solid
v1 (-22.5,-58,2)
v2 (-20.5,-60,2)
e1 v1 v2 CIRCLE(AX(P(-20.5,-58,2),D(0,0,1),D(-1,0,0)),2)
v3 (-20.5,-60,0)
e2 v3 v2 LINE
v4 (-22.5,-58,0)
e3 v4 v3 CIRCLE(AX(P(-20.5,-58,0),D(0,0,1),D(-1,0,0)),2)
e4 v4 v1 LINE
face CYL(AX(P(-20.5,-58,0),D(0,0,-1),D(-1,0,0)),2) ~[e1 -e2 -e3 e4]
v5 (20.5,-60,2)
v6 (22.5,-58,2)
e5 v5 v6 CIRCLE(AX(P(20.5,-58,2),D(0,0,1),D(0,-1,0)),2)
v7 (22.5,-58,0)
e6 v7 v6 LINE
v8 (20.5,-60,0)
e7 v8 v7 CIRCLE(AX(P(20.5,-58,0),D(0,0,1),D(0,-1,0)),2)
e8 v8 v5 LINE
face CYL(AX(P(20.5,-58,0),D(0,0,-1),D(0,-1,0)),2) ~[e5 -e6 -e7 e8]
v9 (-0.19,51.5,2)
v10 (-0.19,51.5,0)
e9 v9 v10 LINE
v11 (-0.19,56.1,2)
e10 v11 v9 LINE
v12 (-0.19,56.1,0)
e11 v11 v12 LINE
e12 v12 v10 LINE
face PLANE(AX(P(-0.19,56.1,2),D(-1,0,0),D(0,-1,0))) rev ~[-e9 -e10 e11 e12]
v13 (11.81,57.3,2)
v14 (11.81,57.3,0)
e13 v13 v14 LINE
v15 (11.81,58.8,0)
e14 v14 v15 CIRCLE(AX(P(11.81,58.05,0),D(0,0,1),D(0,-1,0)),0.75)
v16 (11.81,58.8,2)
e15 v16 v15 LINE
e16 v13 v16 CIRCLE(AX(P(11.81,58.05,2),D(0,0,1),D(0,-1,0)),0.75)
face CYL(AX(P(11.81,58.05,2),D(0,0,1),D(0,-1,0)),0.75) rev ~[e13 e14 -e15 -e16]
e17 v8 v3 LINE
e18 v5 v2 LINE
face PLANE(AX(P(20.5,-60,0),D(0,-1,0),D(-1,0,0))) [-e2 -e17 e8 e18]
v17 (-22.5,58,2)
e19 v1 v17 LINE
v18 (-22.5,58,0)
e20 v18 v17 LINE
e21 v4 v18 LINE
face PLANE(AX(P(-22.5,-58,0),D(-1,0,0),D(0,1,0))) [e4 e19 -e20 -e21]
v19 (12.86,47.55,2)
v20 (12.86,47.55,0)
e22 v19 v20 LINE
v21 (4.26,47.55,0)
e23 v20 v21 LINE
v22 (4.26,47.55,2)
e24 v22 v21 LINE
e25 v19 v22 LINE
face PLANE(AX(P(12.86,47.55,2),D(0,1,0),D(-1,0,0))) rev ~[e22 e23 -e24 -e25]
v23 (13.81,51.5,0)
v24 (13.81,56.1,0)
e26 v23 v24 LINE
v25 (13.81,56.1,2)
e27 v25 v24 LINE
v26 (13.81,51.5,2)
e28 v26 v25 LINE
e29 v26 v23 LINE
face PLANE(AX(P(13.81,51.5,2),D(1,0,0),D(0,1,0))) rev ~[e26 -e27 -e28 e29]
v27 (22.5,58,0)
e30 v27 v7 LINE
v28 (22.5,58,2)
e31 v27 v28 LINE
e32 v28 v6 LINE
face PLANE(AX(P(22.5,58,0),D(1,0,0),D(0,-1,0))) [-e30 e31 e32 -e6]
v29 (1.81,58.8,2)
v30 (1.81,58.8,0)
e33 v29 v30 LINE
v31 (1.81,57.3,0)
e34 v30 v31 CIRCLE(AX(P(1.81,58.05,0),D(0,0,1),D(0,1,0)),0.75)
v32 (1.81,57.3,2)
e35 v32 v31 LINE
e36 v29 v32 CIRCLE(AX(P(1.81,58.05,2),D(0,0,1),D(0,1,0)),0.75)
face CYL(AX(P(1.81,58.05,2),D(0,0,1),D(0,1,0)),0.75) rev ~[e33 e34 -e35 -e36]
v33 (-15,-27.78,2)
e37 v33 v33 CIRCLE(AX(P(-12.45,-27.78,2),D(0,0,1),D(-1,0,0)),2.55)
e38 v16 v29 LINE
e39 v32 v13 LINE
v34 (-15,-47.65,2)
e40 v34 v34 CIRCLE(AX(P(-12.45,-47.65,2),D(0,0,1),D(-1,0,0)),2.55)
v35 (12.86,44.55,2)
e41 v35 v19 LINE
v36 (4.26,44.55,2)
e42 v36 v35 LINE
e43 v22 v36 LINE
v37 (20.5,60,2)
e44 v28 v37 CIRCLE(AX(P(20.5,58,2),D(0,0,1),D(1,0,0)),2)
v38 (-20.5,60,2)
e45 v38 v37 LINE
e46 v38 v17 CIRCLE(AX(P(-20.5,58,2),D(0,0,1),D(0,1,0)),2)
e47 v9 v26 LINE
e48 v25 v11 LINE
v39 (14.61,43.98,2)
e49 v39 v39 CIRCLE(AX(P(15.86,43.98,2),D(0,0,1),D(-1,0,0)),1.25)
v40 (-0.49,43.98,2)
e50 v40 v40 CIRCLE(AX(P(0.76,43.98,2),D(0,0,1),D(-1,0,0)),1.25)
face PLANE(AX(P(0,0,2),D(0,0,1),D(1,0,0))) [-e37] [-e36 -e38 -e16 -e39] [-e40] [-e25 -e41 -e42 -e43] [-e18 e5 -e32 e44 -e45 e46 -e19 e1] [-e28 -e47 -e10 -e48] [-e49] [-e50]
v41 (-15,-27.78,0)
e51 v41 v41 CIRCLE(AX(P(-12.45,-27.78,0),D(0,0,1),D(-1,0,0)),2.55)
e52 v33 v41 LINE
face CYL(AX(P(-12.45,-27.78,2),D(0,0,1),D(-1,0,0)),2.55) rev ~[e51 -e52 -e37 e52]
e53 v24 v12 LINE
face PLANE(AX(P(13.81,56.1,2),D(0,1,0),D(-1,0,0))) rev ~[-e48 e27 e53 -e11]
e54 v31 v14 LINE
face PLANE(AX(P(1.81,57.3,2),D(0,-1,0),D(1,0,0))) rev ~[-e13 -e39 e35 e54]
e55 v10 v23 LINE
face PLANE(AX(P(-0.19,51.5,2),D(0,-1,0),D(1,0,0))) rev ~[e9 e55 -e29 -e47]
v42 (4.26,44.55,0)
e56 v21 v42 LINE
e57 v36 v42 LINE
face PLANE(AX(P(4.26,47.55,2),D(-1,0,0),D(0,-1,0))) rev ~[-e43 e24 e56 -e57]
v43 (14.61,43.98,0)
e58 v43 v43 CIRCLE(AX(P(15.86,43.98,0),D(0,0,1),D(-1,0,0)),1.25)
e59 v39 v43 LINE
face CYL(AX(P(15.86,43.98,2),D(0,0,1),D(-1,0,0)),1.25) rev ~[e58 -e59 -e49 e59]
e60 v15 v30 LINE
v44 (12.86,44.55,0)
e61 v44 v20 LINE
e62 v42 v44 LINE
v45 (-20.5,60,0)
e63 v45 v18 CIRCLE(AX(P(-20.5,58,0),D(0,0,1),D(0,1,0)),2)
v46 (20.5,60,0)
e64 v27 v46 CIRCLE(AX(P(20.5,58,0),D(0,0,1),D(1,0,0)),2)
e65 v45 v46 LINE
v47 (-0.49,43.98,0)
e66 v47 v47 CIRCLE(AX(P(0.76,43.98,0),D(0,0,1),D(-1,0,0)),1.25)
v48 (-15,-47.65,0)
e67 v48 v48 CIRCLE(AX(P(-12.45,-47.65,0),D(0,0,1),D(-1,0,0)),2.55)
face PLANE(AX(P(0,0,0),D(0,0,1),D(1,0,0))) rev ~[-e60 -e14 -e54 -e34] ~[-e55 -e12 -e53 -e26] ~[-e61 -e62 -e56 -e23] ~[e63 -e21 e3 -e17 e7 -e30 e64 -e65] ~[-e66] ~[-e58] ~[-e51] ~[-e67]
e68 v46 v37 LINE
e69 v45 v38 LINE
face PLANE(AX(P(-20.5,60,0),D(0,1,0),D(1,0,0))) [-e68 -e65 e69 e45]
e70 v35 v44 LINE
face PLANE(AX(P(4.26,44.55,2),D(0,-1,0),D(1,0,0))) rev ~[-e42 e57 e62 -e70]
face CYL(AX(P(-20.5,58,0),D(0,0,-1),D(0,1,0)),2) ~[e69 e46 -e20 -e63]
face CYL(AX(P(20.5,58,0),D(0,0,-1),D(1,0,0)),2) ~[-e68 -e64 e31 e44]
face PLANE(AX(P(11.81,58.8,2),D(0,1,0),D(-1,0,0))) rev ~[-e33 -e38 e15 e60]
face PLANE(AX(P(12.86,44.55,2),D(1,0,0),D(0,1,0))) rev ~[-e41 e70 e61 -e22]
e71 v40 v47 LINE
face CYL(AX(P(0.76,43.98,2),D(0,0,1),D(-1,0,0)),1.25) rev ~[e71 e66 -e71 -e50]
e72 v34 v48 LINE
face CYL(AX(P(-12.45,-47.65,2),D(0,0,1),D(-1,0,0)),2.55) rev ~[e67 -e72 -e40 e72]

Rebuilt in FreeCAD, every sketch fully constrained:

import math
import FreeCAD as App
import Part
import Sketcher
from FreeCAD import Vector
Q = App.Units.Quantity


def add_polygon(sketch, points):
    """Adds a closed chain of lines whose ends are joined by coincident constraints."""
    first, n = sketch.GeometryCount, len(points)
    for a, b in zip(points, points[1:] + points[:1]):
        sketch.addGeometry(Part.LineSegment(App.Vector(*a, 0), App.Vector(*b, 0)), False)
    for i in range(n):
        sketch.addConstraint(Sketcher.Constraint("Coincident", first + i, 2, first + (i + 1) % n, 1))

doc = App.newDocument("Part")
body = doc.addObject("PartDesign::Body", "Body")

sketch1 = body.newObject("Sketcher::SketchObject", "Sketch")
sketch1.AttachmentSupport = (doc.getObject("XY_Plane"), [""])
sketch1.MapMode = "FlatFace"
sketch1.addGeometry([
    Part.LineSegment(Vector(20.5, 60, 0), Vector(-20.5, 60, 0)),
    Part.ArcOfCircle(Part.Circle(Vector(-20.5, 58, 0), Vector(0, 0, 1), 2), math.radians(90), math.radians(180)),
    Part.LineSegment(Vector(-22.5, 58, 0), Vector(-22.5, -58, 0)),
    Part.ArcOfCircle(Part.Circle(Vector(-20.5, -58, 0), Vector(0, 0, 1), 2), math.radians(180), math.radians(270)),
    Part.LineSegment(Vector(-20.5, -60, 0), Vector(20.5, -60, 0)),
    Part.ArcOfCircle(Part.Circle(Vector(20.5, -58, 0), Vector(0, 0, 1), 2), math.radians(-90), math.radians(0)),
    Part.LineSegment(Vector(22.5, -58, 0), Vector(22.5, 58, 0)),
    Part.ArcOfCircle(Part.Circle(Vector(20.5, 58, 0), Vector(0, 0, 1), 2), math.radians(0), math.radians(90)),
], False)
sketch1.addConstraint([
    Sketcher.Constraint("Tangent", 0, 2, 1, 1),
    Sketcher.Constraint("Tangent", 1, 2, 2, 1),
    Sketcher.Constraint("Tangent", 2, 2, 3, 1),
    Sketcher.Constraint("Tangent", 3, 2, 4, 1),
    Sketcher.Constraint("Tangent", 4, 2, 5, 1),
    Sketcher.Constraint("Tangent", 5, 2, 6, 1),
    Sketcher.Constraint("Tangent", 6, 2, 7, 1),
    Sketcher.Constraint("Tangent", 7, 2, 0, 1),
    Sketcher.Constraint("Horizontal", 0),
    Sketcher.Constraint("Vertical", 2),
    Sketcher.Constraint("Horizontal", 4),
    Sketcher.Constraint("Vertical", 6),
    Sketcher.Constraint("Equal", 1, 3),
    Sketcher.Constraint("Equal", 3, 5),
    Sketcher.Constraint("Equal", 5, 7),
    Sketcher.Constraint("Symmetric", 1, 3, 5, 3, -1, 1),
    Sketcher.Constraint("Radius", 1, Q("2 mm")),
    Sketcher.Constraint("DistanceX", 2, 2, 5, 2, Q("45 mm")),
    Sketcher.Constraint("DistanceY", 2, 2, 2, 1, Q("116 mm")),
])
pad1 = body.newObject("PartDesign::Pad", "Pad")
pad1.Profile = sketch1
pad1.Length = 2

sketch2 = body.newObject("Sketcher::SketchObject", "Sketch001")
sketch2.AttachmentSupport = (doc.getObject("XY_Plane"), [""])
sketch2.MapMode = "FlatFace"
sketch2.AttachmentOffset = App.Placement(Vector(0, 0, 2), App.Rotation())
sketch2.addGeometry(Part.Circle(Vector(-12.4, -27.8, 0), Vector(0, 0, 1), 2.5), False)
sketch2.addGeometry(Part.Circle(Vector(-12.4, -47.6, 0), Vector(0, 0, 1), 2.5), False)
add_polygon(sketch2, [(-0.2, 56.1), (-0.2, 51.5), (13.8, 51.5), (13.8, 56.1)])
add_polygon(sketch2, [(4.3, 47.5), (4.3, 44.5), (12.9, 44.5), (12.9, 47.5)])
sketch2.addGeometry(Part.Circle(Vector(0.8, 44, 0), Vector(0, 0, 1), 1.2), False)
sketch2.addGeometry(Part.Circle(Vector(15.9, 44, 0), Vector(0, 0, 1), 1.2), False)
sketch2.addGeometry(Part.ArcOfCircle(Part.Circle(Vector(1.8, 58, 0), Vector(0, 0, 1), 0.8), math.radians(90), math.radians(270)), False)
sketch2.addGeometry(Part.LineSegment(Vector(1.8, 57.3, 0), Vector(11.8, 57.3, 0)), False)
sketch2.addGeometry(Part.ArcOfCircle(Part.Circle(Vector(11.8, 58, 0), Vector(0, 0, 1), 0.8), math.radians(-90), math.radians(90)), False)
sketch2.addGeometry(Part.LineSegment(Vector(11.8, 58.8, 0), Vector(1.8, 58.8, 0)), False)
sketch2.addConstraint([
    Sketcher.Constraint("Tangent", 12, 2, 13, 1),
    Sketcher.Constraint("Tangent", 13, 2, 14, 1),
    Sketcher.Constraint("Tangent", 14, 2, 15, 1),
    Sketcher.Constraint("Tangent", 15, 2, 12, 1),
    Sketcher.Constraint("Vertical", 2),
    Sketcher.Constraint("Horizontal", 3),
    Sketcher.Constraint("Vertical", 4),
    Sketcher.Constraint("Horizontal", 5),
    Sketcher.Constraint("Vertical", 6),
    Sketcher.Constraint("Horizontal", 7),
    Sketcher.Constraint("Vertical", 8),
    Sketcher.Constraint("Horizontal", 9),
    Sketcher.Constraint("Horizontal", 13),
    Sketcher.Constraint("Horizontal", 15),
    Sketcher.Constraint("Equal", 0, 1),
    Sketcher.Constraint("Equal", 10, 11),
    Sketcher.Constraint("Horizontal", 10, 3, 11, 3),
    Sketcher.Constraint("Vertical", 0, 3, 1, 3),
    Sketcher.Constraint("Diameter", 0, Q("5.1 mm")),
    Sketcher.Constraint("Diameter", 10, Q("2.5 mm")),
    Sketcher.Constraint("DistanceX", 3, 1, 3, 2, Q("14 mm")),
    Sketcher.Constraint("DistanceX", 13, 1, 13, 2, Q("10 mm")),
    Sketcher.Constraint("DistanceY", 6, 2, 6, 1, Q("3 mm")),
    Sketcher.Constraint("Radius", 12, Q("0.75 mm")),
    Sketcher.Constraint("DistanceX", 7, 1, 7, 2, Q("8.6 mm")),
    Sketcher.Constraint("DistanceY", 2, 2, 2, 1, Q("4.6 mm")),
    Sketcher.Constraint("DistanceX", 7, 2, 11, 3, Q("3 mm")),
    Sketcher.Constraint("DistanceX", 10, 3, 11, 3, Q("15.1 mm")),
    Sketcher.Constraint("DistanceY", 1, 3, 0, 3, Q("19.87 mm")),
    Sketcher.Constraint("DistanceY", 8, 2, 3, 2, Q("3.95 mm")),
    Sketcher.Constraint("DistanceX", 2, 2, 12, 3, Q("2 mm")),
    Sketcher.Constraint("DistanceY", -1, 1, 2, 2, Q("51.5 mm")),
    Sketcher.Constraint("DistanceY", -1, 1, 12, 2, Q("57.3 mm")),
    Sketcher.Constraint("DistanceY", 1, 3, 12, 3, Q("105.7 mm")),
    Sketcher.Constraint("DistanceX", 0, 3, -1, 1, Q("12.45 mm")),
    Sketcher.Constraint("DistanceX", -1, 1, 10, 3, Q("0.76 mm")),
    Sketcher.Constraint("DistanceY", -1, 1, 10, 3, Q("43.98 mm")),
    Sketcher.Constraint("DistanceX", -1, 1, 12, 3, Q("1.81 mm")),
])
pocket1 = body.newObject("PartDesign::Pocket", "Pocket")
pocket1.Profile = sketch2
pocket1.Length = 15

doc.recompute()
